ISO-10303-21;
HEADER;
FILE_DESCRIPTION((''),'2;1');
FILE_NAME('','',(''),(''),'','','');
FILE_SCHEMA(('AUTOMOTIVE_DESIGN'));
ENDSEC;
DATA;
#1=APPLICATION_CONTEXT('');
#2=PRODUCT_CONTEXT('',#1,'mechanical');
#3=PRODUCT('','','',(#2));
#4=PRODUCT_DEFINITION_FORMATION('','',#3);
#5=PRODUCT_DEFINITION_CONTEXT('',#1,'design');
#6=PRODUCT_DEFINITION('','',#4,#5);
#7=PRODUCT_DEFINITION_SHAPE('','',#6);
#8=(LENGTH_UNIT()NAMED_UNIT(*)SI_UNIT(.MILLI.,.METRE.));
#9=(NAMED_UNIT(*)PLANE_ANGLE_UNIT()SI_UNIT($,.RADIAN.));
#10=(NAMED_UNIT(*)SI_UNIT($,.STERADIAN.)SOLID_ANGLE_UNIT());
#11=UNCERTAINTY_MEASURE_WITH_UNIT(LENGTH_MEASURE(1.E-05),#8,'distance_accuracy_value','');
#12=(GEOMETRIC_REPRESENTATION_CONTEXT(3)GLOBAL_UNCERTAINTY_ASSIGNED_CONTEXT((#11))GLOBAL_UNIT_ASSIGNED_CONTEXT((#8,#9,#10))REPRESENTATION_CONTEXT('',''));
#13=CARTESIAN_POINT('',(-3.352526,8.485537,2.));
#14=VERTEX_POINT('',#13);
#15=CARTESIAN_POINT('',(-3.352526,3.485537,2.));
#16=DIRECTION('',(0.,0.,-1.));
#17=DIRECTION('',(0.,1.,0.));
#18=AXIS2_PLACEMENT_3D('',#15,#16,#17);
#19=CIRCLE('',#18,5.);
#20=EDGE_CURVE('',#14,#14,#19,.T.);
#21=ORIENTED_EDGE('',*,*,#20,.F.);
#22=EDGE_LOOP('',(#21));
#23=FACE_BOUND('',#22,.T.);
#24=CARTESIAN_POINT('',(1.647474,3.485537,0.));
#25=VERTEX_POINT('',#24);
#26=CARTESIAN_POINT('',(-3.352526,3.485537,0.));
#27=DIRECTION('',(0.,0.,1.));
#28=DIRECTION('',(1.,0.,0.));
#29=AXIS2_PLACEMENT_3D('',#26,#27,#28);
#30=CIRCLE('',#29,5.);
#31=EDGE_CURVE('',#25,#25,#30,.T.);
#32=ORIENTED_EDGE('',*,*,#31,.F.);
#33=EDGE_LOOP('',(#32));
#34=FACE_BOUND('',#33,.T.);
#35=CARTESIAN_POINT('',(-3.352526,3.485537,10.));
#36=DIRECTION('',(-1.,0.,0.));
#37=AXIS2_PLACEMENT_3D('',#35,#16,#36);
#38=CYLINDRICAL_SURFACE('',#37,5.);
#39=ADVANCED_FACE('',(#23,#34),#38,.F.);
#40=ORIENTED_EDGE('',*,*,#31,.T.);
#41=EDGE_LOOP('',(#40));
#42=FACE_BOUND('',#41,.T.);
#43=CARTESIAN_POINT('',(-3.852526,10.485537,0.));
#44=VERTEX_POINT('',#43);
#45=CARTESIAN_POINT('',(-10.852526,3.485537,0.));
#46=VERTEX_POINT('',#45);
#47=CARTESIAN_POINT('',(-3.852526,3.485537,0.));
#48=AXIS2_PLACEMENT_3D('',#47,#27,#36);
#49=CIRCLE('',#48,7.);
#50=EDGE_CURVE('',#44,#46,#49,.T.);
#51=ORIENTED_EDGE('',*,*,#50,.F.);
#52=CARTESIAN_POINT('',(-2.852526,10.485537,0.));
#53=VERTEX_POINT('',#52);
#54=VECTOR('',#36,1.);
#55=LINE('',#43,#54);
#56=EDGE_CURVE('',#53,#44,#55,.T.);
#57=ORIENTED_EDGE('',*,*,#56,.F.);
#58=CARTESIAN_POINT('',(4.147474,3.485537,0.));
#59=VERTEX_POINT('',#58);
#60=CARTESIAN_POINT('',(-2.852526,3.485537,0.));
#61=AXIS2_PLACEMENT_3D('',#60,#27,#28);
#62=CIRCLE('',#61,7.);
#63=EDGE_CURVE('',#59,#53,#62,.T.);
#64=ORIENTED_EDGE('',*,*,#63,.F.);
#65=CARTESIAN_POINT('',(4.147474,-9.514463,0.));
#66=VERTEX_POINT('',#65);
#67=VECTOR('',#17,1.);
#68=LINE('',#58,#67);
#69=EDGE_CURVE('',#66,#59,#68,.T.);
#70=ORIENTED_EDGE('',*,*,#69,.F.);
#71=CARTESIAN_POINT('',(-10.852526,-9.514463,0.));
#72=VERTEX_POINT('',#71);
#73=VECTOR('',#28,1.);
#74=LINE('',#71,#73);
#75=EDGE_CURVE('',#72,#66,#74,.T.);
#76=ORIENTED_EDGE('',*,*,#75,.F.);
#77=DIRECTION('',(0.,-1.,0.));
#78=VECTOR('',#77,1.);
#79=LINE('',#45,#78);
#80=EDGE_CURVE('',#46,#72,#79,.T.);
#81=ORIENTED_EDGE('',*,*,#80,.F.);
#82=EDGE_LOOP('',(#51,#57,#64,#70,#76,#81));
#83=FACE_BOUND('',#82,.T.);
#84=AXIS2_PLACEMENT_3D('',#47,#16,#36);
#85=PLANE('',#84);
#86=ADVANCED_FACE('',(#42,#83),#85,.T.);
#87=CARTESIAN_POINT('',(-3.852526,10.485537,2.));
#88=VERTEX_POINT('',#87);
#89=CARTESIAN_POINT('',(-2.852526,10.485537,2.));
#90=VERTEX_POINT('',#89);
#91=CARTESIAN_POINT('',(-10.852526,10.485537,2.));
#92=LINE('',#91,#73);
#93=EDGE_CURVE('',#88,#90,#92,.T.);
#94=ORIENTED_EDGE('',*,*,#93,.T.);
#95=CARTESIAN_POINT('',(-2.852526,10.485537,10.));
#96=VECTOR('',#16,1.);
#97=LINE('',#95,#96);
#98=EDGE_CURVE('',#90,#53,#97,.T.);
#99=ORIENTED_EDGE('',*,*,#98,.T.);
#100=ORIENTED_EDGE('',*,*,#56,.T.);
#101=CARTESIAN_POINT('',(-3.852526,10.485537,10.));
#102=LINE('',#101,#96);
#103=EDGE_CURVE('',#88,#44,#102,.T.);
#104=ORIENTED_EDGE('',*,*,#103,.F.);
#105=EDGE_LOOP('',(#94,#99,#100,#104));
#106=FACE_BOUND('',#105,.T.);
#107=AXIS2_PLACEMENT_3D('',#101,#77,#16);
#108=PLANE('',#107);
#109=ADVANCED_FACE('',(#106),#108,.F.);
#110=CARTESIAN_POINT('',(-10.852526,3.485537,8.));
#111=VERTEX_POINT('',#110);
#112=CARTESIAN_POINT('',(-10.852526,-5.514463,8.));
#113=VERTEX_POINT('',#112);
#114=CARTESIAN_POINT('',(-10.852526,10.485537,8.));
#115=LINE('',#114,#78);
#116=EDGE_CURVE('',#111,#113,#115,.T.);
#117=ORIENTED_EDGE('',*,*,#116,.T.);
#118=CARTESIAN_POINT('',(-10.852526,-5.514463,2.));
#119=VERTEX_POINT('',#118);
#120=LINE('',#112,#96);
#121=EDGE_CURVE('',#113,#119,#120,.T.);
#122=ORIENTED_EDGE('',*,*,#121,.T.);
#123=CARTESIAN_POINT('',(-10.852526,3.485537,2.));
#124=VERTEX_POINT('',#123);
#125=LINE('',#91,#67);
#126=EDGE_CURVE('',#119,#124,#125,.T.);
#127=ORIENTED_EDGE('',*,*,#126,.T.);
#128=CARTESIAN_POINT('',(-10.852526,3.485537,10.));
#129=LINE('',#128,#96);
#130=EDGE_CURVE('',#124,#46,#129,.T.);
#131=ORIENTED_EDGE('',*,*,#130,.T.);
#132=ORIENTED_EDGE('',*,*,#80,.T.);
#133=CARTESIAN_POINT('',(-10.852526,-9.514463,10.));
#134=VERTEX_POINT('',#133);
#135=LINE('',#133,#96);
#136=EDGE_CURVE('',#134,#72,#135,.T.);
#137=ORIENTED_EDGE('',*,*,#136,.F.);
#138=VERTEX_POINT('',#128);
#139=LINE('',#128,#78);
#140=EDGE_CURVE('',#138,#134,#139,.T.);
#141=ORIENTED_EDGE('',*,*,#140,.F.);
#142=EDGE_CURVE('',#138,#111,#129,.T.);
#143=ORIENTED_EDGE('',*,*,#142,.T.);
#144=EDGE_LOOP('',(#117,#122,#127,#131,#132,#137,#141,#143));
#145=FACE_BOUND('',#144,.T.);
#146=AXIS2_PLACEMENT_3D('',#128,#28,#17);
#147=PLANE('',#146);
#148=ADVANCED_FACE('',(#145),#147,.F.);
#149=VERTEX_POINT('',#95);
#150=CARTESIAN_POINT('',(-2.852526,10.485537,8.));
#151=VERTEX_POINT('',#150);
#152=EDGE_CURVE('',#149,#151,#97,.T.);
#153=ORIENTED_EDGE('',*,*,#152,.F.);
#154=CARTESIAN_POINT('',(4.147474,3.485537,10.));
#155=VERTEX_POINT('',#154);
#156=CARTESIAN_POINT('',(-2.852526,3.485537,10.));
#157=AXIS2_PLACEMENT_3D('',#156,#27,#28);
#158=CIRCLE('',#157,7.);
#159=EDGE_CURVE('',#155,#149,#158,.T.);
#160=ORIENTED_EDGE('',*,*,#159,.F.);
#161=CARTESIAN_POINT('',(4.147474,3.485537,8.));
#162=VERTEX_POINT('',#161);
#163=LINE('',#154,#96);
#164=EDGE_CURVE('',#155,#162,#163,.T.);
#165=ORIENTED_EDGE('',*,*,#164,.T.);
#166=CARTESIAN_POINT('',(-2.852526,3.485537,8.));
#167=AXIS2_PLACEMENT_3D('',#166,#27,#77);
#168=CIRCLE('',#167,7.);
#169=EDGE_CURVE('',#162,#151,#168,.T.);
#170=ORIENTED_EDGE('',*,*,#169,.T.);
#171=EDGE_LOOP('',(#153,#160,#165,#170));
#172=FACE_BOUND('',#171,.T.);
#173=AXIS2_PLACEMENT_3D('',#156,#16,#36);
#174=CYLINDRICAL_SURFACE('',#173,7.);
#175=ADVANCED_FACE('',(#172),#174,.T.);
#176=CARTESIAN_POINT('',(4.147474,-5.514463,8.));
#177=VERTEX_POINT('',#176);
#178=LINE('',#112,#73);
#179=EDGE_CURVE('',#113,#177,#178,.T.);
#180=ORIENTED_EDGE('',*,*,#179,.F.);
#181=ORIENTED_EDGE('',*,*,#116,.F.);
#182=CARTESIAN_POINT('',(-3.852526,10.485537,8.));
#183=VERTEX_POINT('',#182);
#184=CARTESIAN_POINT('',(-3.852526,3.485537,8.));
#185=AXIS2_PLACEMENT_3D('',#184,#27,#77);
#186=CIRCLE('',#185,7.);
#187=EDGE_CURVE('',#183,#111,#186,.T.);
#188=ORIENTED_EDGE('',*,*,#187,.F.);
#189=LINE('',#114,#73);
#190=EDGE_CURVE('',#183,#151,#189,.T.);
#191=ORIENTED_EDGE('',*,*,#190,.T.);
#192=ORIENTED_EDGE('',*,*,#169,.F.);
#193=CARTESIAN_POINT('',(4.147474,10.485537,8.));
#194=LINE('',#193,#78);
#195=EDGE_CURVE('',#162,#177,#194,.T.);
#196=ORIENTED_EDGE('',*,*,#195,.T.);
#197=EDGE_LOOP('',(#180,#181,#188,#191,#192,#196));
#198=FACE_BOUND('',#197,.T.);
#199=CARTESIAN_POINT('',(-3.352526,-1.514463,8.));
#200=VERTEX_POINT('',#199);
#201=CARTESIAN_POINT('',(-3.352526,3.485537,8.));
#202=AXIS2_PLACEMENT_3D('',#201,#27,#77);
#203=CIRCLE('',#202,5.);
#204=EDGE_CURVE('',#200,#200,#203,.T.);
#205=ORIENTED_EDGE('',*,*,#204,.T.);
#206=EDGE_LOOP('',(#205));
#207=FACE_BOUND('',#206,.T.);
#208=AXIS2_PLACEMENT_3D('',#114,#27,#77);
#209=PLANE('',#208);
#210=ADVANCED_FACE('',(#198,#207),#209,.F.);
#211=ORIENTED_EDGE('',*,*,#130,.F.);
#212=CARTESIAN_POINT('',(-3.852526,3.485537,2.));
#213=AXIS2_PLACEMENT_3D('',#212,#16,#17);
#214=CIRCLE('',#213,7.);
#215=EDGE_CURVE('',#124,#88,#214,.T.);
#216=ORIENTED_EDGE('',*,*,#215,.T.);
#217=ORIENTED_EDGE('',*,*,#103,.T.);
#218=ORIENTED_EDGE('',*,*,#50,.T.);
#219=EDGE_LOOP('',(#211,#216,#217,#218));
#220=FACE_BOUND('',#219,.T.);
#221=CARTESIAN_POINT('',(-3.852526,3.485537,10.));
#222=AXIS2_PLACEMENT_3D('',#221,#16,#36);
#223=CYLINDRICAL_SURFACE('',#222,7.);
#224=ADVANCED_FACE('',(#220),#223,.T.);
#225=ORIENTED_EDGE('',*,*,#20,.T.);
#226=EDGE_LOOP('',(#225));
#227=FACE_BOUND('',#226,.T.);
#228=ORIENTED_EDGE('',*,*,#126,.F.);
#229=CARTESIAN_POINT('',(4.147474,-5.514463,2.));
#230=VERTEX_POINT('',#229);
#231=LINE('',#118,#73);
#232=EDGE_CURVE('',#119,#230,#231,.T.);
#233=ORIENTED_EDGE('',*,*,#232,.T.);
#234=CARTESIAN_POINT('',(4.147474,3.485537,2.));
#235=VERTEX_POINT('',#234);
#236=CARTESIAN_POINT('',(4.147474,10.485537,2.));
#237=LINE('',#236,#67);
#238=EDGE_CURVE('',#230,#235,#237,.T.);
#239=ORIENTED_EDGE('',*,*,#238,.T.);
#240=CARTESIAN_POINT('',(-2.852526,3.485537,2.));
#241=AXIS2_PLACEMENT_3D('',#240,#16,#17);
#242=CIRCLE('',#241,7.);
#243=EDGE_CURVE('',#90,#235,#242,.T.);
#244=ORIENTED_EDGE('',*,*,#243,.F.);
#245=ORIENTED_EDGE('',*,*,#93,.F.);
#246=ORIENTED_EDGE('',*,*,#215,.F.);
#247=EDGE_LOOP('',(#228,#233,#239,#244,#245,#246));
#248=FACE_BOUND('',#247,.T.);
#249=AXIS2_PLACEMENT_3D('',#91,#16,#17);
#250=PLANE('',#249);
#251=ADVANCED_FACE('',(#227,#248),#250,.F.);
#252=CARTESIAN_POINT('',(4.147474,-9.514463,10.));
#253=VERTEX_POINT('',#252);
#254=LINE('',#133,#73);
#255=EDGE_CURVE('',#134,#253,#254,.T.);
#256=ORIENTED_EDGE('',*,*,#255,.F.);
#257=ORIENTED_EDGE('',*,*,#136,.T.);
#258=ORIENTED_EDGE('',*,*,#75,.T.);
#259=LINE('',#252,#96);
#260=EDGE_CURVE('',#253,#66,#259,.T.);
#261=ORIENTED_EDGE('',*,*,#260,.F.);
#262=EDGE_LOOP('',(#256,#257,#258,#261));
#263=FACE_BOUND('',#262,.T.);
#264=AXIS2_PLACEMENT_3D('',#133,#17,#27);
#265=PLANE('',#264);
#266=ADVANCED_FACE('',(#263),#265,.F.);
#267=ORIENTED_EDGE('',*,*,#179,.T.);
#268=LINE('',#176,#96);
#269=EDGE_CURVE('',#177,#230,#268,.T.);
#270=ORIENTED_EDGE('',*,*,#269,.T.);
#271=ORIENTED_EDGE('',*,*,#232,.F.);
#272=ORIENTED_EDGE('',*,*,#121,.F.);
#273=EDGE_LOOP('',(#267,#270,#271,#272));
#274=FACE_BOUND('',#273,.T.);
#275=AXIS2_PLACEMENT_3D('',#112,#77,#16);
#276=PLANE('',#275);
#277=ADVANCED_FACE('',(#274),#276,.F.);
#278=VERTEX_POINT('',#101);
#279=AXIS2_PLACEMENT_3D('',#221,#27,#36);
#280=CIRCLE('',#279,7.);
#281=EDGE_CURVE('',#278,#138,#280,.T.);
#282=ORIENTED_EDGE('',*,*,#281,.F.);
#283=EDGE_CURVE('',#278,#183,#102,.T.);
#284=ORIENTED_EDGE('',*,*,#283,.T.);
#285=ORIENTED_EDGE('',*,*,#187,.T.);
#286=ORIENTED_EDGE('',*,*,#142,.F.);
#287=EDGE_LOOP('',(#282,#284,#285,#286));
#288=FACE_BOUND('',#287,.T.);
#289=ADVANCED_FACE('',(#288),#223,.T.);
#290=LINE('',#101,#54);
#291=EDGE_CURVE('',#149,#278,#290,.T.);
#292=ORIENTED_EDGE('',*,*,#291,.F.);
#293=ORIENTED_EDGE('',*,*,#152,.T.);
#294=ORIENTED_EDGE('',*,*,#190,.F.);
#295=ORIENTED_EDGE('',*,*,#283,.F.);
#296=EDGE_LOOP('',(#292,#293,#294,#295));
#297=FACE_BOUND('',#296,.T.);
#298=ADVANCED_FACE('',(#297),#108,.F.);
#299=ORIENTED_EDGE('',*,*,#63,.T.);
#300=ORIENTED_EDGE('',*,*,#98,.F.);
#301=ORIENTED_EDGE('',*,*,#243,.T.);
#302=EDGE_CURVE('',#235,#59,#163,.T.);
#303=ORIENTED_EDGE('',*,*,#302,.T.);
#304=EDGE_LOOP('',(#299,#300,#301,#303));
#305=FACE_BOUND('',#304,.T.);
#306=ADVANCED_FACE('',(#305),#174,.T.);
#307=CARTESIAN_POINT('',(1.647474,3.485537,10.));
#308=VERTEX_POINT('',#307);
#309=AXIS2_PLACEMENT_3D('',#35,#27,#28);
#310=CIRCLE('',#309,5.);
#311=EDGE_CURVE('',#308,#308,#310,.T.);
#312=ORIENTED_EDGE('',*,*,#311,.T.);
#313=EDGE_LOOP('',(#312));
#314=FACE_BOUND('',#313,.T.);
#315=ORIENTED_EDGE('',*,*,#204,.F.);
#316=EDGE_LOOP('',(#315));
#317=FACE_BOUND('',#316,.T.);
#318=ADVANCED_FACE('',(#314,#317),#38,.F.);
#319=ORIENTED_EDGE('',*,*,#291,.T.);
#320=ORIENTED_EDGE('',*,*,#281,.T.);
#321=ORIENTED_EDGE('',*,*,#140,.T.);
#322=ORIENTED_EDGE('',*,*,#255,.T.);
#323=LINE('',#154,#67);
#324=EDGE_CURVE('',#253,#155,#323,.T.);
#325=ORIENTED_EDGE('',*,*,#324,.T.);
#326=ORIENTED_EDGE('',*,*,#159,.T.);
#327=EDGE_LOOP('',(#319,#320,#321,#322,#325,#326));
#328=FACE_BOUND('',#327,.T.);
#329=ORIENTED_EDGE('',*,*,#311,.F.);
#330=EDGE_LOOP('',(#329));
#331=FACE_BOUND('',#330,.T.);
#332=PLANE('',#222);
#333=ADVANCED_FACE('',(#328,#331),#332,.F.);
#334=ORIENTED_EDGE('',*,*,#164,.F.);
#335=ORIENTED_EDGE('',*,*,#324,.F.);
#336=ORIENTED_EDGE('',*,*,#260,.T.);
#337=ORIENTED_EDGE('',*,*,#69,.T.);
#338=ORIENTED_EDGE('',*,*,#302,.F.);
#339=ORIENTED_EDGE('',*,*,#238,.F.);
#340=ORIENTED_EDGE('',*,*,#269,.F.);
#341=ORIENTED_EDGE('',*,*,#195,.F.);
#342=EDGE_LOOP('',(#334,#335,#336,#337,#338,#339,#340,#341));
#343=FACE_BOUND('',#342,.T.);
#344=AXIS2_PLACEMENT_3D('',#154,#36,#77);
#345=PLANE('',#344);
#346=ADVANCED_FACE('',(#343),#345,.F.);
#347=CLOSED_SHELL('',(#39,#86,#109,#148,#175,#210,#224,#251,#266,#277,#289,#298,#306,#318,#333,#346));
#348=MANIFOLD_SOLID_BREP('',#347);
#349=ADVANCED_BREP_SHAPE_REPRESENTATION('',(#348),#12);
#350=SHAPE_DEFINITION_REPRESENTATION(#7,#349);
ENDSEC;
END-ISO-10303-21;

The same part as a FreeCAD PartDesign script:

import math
import FreeCAD as App
import Part
import Sketcher

doc = App.newDocument("Part")
body = doc.addObject("PartDesign::Body", "Body")

# Sketch on XY plane
sketch1 = body.newObject("Sketcher::SketchObject", "Sketch")
sketch1.AttachmentSupport = (doc.getObject("XY_Plane"), [""])
sketch1.MapMode = "FlatFace"
sketch1.addGeometry([
    Part.LineSegment(App.Vector(-2.852526, 10.485537, 0), App.Vector(-3.852526, 10.485537, 0)),  # 0
    Part.ArcOfCircle(Part.Circle(App.Vector(-3.852526, 3.485537, 0), App.Vector(0, 0, 1), 7), math.radians(90), math.radians(180)),  # 1
    Part.LineSegment(App.Vector(-10.852526, 3.485537, 0), App.Vector(-10.852526, -9.514463, 0)),  # 2
    Part.LineSegment(App.Vector(-10.852526, -9.514463, 0), App.Vector(4.147474, -9.514463, 0)),  # 3
    Part.LineSegment(App.Vector(4.147474, -9.514463, 0), App.Vector(4.147474, 3.485537, 0)),  # 4
    Part.ArcOfCircle(Part.Circle(App.Vector(-2.852526, 3.485537, 0), App.Vector(0, 0, 1), 7), math.radians(0), math.radians(90)),  # 5
    Part.Circle(App.Vector(-3.352526, 3.485537, 0), App.Vector(0, 0, 1), 5),  # 6
], False)
sketch1.addConstraint([
    Sketcher.Constraint("Tangent", 0, 2, 1, 1),
    Sketcher.Constraint("Tangent", 1, 2, 2, 1),
    Sketcher.Constraint("Coincident", 2, 2, 3, 1),
    Sketcher.Constraint("Coincident", 3, 2, 4, 1),
    Sketcher.Constraint("Tangent", 4, 2, 5, 1),
    Sketcher.Constraint("Tangent", 5, 2, 0, 1),
    Sketcher.Constraint("Horizontal", 0),
    Sketcher.Constraint("Vertical", 2),
    Sketcher.Constraint("Horizontal", 3),
    Sketcher.Constraint("Vertical", 4),
    Sketcher.Constraint("Equal", 1, 5),
    Sketcher.Constraint("Horizontal", 5, 3, 6, 3),
    Sketcher.Constraint("Diameter", 6, 10.0),
    Sketcher.Constraint("Radius", 1, 7.0),
    Sketcher.Constraint("DistanceX", 0, 2, 0, 1, 1.0),
    Sketcher.Constraint("DistanceY", 2, 2, 2, 1, 13.0),
    Sketcher.Constraint("DistanceX", 1, 3, 6, 3, 0.5),
    Sketcher.Constraint("DistanceX", 1, 3, -1, 1, 3.852526),
    Sketcher.Constraint("DistanceY", -1, 1, 1, 3, 3.485537),
])
pad1 = body.newObject("PartDesign::Pad", "Pad")
pad1.Profile = sketch1
pad1.Length = 10

# Sketch on YZ plane
sketch2 = body.newObject("Sketcher::SketchObject", "Sketch001")
sketch2.AttachmentSupport = (doc.getObject("YZ_Plane"), [""])
sketch2.MapMode = "FlatFace"
sketch2.AttachmentOffset = App.Placement(App.Vector(0, 0, 4.147474), App.Rotation())
sketch2.addGeometry([
    Part.LineSegment(App.Vector(10.485537, 8, 0), App.Vector(-5.514463, 8, 0)),
    Part.LineSegment(App.Vector(-5.514463, 8, 0), App.Vector(-5.514463, 2, 0)),
    Part.LineSegment(App.Vector(-5.514463, 2, 0), App.Vector(10.485537, 2, 0)),
    Part.LineSegment(App.Vector(10.485537, 2, 0), App.Vector(10.485537, 8, 0)),
], False)
sketch2.addConstraint([
    Sketcher.Constraint("Coincident", 0, 2, 1, 1),
    Sketcher.Constraint("Coincident", 1, 2, 2, 1),
    Sketcher.Constraint("Coincident", 2, 2, 3, 1),
    Sketcher.Constraint("Coincident", 3, 2, 0, 1),
    Sketcher.Constraint("Horizontal", 0),
    Sketcher.Constraint("Vertical", 1),
    Sketcher.Constraint("Horizontal", 2),
    Sketcher.Constraint("Vertical", 3),
    Sketcher.Constraint("DistanceX", 0, 2, 0, 1, 16.0),
    Sketcher.Constraint("DistanceY", 1, 2, 1, 1, 6.0),
    Sketcher.Constraint("DistanceY", -1, 1, 0, 2, 8.0),
    Sketcher.Constraint("DistanceX", 0, 2, -1, 1, 5.514463),
])
pocket1 = body.newObject("PartDesign::Pocket", "Pocket")
pocket1.Profile = sketch2
pocket1.Type = "ThroughAll"

doc.recompute()
